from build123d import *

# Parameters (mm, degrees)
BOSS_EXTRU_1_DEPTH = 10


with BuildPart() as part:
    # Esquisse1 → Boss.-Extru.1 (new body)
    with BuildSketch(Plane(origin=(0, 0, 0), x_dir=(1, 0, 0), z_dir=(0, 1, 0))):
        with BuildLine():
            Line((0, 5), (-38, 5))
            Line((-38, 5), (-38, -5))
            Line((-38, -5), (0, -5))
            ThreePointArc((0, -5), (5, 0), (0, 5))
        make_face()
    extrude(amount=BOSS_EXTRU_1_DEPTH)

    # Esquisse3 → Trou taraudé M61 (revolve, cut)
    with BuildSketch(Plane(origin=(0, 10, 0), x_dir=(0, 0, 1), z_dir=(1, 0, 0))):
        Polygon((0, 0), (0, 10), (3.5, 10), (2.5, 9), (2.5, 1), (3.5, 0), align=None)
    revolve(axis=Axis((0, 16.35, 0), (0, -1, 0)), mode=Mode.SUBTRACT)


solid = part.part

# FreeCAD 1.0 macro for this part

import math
import FreeCAD as App
import Part
import Sketcher
from FreeCAD import Vector

doc = App.newDocument("Part")
body = doc.addObject("PartDesign::Body", "Body")

# Sketch on XZ plane
sketch1 = body.newObject("Sketcher::SketchObject", "Sketch")
sketch1.AttachmentSupport = (doc.getObject("XZ_Plane"), [""])
sketch1.MapMode = "FlatFace"
sketch1.addGeometry([
    Part.LineSegment(Vector(0, -5, 0), Vector(-38, -5, 0)),
    Part.LineSegment(Vector(-38, -5, 0), Vector(-38, 5, 0)),
    Part.LineSegment(Vector(-38, 5, 0), Vector(0, 5, 0)),
    Part.ArcOfCircle(Part.Circle(Vector(0, 0, 0), Vector(0, 0, 1), 5), math.radians(-90), math.radians(90)),
], False)
sketch1.addConstraint([
    Sketcher.Constraint("Coincident", 0, 2, 1, 1),
    Sketcher.Constraint("Coincident", 1, 2, 2, 1),
    Sketcher.Constraint("Tangent", 2, 2, 3, 2),
    Sketcher.Constraint("Tangent", 3, 1, 0, 1),
    Sketcher.Constraint("Horizontal", 0),
    Sketcher.Constraint("Vertical", 1),
    Sketcher.Constraint("Horizontal", 2),
    Sketcher.Constraint("Coincident", 3, 3, -1, 1),
    Sketcher.Constraint("Radius", 3, 5.0),
    Sketcher.Constraint("DistanceX", 0, 2, 0, 1, 38.0),
])
pad1 = body.newObject("PartDesign::Pad", "Pad")
pad1.Profile = sketch1
pad1.Length = 10
pad1.Reversed = True

# Sketch on YZ plane
sketch2 = body.newObject("Sketcher::SketchObject", "Sketch001")
sketch2.AttachmentSupport = (doc.getObject("YZ_Plane"), [""])
sketch2.MapMode = "FlatFace"
sketch2.addGeometry([
    Part.LineSegment(Vector(0, 0, 0), Vector(10, 0, 0)),  # 0
    Part.LineSegment(Vector(10, 0, 0), Vector(10, 3.5, 0)),  # 1
    Part.LineSegment(Vector(10, 3.5, 0), Vector(9, 2.5, 0)),  # 2
    Part.LineSegment(Vector(9, 2.5, 0), Vector(1, 2.5, 0)),  # 3
    Part.LineSegment(Vector(1, 2.5, 0), Vector(0, 3.5, 0)),  # 4
    Part.LineSegment(Vector(0, 3.5, 0), Vector(0, 0, 0)),  # 5
], False)
sketch2.addConstraint([
    Sketcher.Constraint("Coincident", 0, 2, 1, 1),
    Sketcher.Constraint("Coincident", 1, 2, 2, 1),
    Sketcher.Constraint("Coincident", 2, 2, 3, 1),
    Sketcher.Constraint("Coincident", 3, 2, 4, 1),
    Sketcher.Constraint("Coincident", 4, 2, 5, 1),
    Sketcher.Constraint("Coincident", 5, 2, 0, 1),
    Sketcher.Constraint("Horizontal", 0),
    Sketcher.Constraint("Vertical", 1),
    Sketcher.Constraint("Horizontal", 3),
    Sketcher.Constraint("Vertical", 5),
    Sketcher.Constraint("Coincident", 5, 2, -1, 1),
    Sketcher.Constraint("Perpendicular", 2, 4),
    Sketcher.Constraint("Horizontal", 1, 2, 4, 2),
    Sketcher.Constraint("Equal", 2, 4),
    Sketcher.Constraint("DistanceX", 0, 1, 0, 2, 10.0),
    Sketcher.Constraint("DistanceX", 3, 2, 3, 1, 8.0),
    Sketcher.Constraint("DistanceY", 1, 1, 1, 2, 3.5),
])
groove = body.newObject("PartDesign::Groove", "Groove")
groove.Profile = sketch2
groove.ReferenceAxis = (sketch2, ["H_Axis"])
groove.Angle = 360

doc.recompute()
